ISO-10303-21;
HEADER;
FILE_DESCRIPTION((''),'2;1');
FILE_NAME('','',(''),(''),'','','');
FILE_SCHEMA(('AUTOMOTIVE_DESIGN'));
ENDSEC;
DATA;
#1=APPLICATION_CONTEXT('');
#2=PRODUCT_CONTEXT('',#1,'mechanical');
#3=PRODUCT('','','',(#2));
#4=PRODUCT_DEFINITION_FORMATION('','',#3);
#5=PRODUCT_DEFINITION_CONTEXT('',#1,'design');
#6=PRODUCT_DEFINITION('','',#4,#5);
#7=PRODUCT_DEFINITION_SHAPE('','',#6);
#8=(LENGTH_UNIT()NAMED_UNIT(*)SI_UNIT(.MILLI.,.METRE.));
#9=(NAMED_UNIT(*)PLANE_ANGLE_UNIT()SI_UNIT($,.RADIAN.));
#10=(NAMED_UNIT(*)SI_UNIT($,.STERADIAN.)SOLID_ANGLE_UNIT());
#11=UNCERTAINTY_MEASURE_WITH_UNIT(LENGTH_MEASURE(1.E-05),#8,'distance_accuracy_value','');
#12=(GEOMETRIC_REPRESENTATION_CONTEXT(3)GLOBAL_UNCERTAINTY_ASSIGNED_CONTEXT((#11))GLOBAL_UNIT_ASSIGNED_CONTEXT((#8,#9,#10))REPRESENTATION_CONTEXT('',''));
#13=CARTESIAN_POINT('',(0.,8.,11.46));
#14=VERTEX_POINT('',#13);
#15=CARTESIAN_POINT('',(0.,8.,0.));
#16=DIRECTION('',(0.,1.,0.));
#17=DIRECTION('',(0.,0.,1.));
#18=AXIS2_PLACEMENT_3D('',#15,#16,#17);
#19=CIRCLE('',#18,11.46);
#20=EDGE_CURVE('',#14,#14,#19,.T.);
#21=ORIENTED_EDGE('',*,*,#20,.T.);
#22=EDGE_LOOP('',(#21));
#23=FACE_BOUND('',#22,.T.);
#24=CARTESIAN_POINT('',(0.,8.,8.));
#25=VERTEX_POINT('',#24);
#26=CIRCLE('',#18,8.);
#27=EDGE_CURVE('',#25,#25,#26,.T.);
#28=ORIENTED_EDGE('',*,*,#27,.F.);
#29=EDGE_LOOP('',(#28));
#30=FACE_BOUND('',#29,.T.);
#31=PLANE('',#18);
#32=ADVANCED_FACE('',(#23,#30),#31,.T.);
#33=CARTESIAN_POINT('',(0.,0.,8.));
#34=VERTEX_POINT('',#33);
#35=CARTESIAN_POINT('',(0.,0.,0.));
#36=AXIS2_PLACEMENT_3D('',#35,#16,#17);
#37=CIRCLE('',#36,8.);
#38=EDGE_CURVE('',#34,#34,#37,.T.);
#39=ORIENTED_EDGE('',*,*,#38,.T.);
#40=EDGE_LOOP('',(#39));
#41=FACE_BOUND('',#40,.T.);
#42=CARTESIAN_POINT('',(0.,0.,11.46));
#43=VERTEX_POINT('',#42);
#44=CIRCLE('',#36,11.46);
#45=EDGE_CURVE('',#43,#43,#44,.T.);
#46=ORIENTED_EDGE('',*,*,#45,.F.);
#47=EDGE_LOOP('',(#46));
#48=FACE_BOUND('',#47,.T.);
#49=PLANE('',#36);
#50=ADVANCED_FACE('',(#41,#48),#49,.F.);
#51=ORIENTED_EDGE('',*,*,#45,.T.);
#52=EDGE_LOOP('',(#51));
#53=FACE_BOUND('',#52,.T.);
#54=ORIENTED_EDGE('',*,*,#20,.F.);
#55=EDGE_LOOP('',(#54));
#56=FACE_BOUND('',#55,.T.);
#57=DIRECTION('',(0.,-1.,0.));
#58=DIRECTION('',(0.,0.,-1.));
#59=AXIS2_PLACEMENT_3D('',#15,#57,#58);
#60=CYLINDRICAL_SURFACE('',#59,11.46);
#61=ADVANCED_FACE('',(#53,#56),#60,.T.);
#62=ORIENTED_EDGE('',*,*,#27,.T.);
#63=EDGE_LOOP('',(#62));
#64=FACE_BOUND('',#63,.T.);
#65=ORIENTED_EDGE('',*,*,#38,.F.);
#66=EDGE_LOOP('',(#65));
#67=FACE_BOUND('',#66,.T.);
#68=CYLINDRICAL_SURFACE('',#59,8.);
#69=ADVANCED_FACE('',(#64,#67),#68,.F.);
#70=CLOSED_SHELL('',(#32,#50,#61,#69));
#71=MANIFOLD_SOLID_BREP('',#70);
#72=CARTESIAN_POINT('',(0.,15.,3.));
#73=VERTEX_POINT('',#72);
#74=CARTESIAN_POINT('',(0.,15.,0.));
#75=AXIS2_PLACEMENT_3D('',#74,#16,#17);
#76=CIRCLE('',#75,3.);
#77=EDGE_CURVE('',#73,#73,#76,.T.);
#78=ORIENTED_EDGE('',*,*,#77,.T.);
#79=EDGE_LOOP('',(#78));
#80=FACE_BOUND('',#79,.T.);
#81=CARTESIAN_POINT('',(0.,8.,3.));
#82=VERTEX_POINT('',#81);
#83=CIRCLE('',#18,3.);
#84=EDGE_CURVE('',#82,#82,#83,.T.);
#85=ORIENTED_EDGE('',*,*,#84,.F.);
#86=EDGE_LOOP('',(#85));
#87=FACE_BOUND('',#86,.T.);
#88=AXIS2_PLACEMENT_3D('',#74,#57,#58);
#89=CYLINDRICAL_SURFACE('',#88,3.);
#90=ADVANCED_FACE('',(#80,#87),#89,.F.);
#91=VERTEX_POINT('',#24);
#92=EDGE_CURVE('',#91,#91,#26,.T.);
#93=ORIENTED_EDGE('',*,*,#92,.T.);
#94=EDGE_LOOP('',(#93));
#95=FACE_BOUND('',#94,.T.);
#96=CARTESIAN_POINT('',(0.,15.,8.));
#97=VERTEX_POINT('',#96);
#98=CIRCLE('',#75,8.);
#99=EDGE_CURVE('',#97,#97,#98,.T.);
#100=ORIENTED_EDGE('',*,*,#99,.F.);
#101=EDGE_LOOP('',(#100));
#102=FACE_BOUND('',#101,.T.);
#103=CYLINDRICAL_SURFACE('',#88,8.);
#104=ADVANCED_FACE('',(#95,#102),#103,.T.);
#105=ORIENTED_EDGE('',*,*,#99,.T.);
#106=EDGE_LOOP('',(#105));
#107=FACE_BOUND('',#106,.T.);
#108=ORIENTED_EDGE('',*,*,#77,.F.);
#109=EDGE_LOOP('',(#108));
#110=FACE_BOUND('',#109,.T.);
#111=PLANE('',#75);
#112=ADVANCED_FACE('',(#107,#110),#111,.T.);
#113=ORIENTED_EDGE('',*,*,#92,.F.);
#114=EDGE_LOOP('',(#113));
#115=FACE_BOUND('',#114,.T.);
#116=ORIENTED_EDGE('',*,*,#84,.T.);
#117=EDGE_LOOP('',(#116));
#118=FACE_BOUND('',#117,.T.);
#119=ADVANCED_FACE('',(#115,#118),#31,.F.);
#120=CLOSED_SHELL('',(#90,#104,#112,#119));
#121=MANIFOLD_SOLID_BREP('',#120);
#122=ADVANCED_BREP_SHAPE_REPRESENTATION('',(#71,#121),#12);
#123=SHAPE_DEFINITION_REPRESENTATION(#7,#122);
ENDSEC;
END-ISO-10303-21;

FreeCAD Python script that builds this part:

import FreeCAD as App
import Part
import Sketcher

doc = App.newDocument("Part")
params = doc.addObject("Spreadsheet::Sheet", "Params")
for row, (alias, value) in enumerate([
    ("sketch1_diameter", "16 mm"),
    ("sketch1_diameter2", "22.92 mm"),
    ("pad1_length", "8 mm"),
    ("sketch2_diameter", "16 mm"),
    ("sketch2_diameter2", "6 mm"),
    ("pad2_length", "7 mm"),
], start=1):
    params.set(f"A{row}", alias)
    params.set(f"B{row}", "=" + value)
    params.setAlias(f"B{row}", alias)

body = doc.addObject("PartDesign::Body", "Body")

sketch1 = body.newObject("Sketcher::SketchObject", "Sketch")
sketch1.AttachmentSupport = (doc.getObject("XZ_Plane"), [""])
sketch1.MapMode = "FlatFace"
sketch1.addGeometry(Part.Circle(App.Vector(0, 0, 0), App.Vector(0, 0, 1), 11), False)
sketch1.addGeometry(Part.Circle(App.Vector(0, 0, 0), App.Vector(0, 0, 1), 8), False)
sketch1.addConstraint(Sketcher.Constraint("Coincident", 0, 3, -1, 1))
sketch1.addConstraint(Sketcher.Constraint("Coincident", 1, 3, -1, 1))
sketch1.addConstraint(Sketcher.Constraint("Diameter", 1, 16.0))
sketch1.addConstraint(Sketcher.Constraint("Diameter", 0, 22.92))
sketch1.setExpression("Constraints[2]", "Params.sketch1_diameter")
sketch1.setExpression("Constraints[3]", "Params.sketch1_diameter2")
pad1 = body.newObject("PartDesign::Pad", "Pad")
pad1.Profile = sketch1
pad1.setExpression("Length", "Params.pad1_length")
pad1.Reversed = True
body2 = doc.addObject("PartDesign::Body", "Body001")

sketch2 = body2.newObject("Sketcher::SketchObject", "Sketch001")
sketch2.AttachmentSupport = (doc.getObject("XZ_Plane001"), [""])
sketch2.MapMode = "FlatFace"
sketch2.AttachmentOffset = App.Placement(App.Vector(0, 0, -8), App.Rotation())
sketch2.addGeometry(Part.Circle(App.Vector(0, 0, 0), App.Vector(0, 0, 1), 8), False)
sketch2.addGeometry(Part.Circle(App.Vector(0, 0, 0), App.Vector(0, 0, 1), 3), False)
sketch2.addConstraint(Sketcher.Constraint("Coincident", 0, 3, -1, 1))
sketch2.addConstraint(Sketcher.Constraint("Coincident", 1, 3, -1, 1))
sketch2.addConstraint(Sketcher.Constraint("Diameter", 0, 16.0))
sketch2.addConstraint(Sketcher.Constraint("Diameter", 1, 6.0))
sketch2.setExpression("Constraints[2]", "Params.sketch2_diameter")
sketch2.setExpression("Constraints[3]", "Params.sketch2_diameter2")
pad2 = body2.newObject("PartDesign::Pad", "Pad001")
pad2.Profile = sketch2
pad2.setExpression("Length", "Params.pad2_length")
pad2.Reversed = True

doc.recompute()
